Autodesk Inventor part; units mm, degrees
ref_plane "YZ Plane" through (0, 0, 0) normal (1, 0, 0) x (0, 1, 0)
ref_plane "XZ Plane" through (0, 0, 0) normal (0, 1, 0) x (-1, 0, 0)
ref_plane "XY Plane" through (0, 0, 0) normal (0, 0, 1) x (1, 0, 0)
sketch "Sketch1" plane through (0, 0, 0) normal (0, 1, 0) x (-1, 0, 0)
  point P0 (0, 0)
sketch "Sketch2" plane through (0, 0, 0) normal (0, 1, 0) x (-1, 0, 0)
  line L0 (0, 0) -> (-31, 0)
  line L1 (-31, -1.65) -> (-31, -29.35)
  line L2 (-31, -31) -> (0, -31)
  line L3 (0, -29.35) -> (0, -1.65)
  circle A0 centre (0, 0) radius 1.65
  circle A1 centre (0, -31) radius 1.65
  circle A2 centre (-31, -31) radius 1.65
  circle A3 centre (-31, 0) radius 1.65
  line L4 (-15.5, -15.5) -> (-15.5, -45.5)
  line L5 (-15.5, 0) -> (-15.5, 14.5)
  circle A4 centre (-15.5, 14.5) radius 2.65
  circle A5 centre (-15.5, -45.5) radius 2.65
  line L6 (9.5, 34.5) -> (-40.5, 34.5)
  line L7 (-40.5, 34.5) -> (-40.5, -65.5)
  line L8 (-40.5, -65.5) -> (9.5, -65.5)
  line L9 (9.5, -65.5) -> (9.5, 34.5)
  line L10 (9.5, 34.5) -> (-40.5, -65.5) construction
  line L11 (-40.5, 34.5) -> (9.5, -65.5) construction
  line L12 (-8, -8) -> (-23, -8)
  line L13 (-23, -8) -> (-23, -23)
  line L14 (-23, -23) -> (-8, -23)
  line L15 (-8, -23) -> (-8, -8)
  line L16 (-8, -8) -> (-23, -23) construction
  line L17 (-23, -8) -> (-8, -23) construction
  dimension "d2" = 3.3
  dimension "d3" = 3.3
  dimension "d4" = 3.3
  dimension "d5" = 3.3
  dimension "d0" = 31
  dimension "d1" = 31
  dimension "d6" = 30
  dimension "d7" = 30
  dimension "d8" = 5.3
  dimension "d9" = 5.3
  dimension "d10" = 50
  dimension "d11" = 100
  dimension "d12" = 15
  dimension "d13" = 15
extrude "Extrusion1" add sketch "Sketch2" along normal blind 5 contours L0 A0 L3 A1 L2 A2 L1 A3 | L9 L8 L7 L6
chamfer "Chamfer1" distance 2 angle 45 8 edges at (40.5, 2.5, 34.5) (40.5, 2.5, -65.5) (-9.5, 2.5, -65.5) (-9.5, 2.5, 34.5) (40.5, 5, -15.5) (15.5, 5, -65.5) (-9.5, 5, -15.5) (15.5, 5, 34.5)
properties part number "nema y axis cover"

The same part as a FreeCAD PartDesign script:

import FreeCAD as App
import Part
import Sketcher
from FreeCAD import Vector


def edges_at(feature, points):
    """Names of the edges that pass closest to the given points."""
    edges = feature.Shape.Edges
    near = lambda p: min(range(len(edges)), key=lambda i: edges[i].distToShape(Part.Vertex(*p))[0])
    return sorted({f"Edge{near(p) + 1}" for p in points})


def add_polygon(sketch, points):
    """Adds a closed chain of lines whose ends are joined by coincident constraints."""
    first, n = sketch.GeometryCount, len(points)
    for a, b in zip(points, points[1:] + points[:1]):
        sketch.addGeometry(Part.LineSegment(App.Vector(*a, 0), App.Vector(*b, 0)), False)
    for i in range(n):
        sketch.addConstraint(Sketcher.Constraint("Coincident", first + i, 2, first + (i + 1) % n, 1))

doc = App.newDocument("Part")
params = doc.addObject("Spreadsheet::Sheet", "Params")
for row, (alias, value) in enumerate([
    ("sketch1_diameter", "3.3 mm"),
    ("sketch1_diameter2", "5.3 mm"),
    ("sketch1_width", "50 mm"),
    ("sketch1_width2", "15 mm"),
    ("sketch1_height", "100 mm"),
    ("pad1_length", "5 mm"),
    ("chamfer_size", "2 mm"),
], start=1):
    params.set(f"A{row}", alias)
    params.set(f"B{row}", "=" + value)
    params.setAlias(f"B{row}", alias)

body = doc.addObject("PartDesign::Body", "Body")

# Sketch on XZ plane
sketch1 = body.newObject("Sketcher::SketchObject", "Sketch")
sketch1.AttachmentSupport = (doc.getObject("XZ_Plane"), [""])
sketch1.MapMode = "FlatFace"
add_polygon(sketch1, [(-9.5, -65.5), (-9.5, 34.5), (40.5, 34.5), (40.5, -65.5)])  # lines 0-3
sketch1.addGeometry(Part.Circle(Vector(0, 0, 0), Vector(0, 0, 1), 1.6), False)  # 4
sketch1.addGeometry(Part.Circle(Vector(0, -31, 0), Vector(0, 0, 1), 1.6), False)  # 5
sketch1.addGeometry(Part.Circle(Vector(31, -31, 0), Vector(0, 0, 1), 1.6), False)  # 6
sketch1.addGeometry(Part.Circle(Vector(31, 0, 0), Vector(0, 0, 1), 1.6), False)  # 7
add_polygon(sketch1, [(8, -23), (15.5, -23), (23, -23), (23, -8), (8, -8)])  # lines 8-12
sketch1.addGeometry(Part.Circle(Vector(15.5, -45.5, 0), Vector(0, 0, 1), 2.6), False)  # 13
sketch1.addGeometry(Part.Circle(Vector(15.5, 14.5, 0), Vector(0, 0, 1), 2.6), False)  # 14
sketch1.addConstraint([
    Sketcher.Constraint("Vertical", 0),
    Sketcher.Constraint("Horizontal", 1),
    Sketcher.Constraint("Vertical", 2),
    Sketcher.Constraint("Horizontal", 3),
    Sketcher.Constraint("Horizontal", 8),
    Sketcher.Constraint("Horizontal", 9),
    Sketcher.Constraint("Vertical", 10),
    Sketcher.Constraint("Horizontal", 11),
    Sketcher.Constraint("Vertical", 12),
    Sketcher.Constraint("Coincident", 4, 3, -1, 1),
    Sketcher.Constraint("Equal", 4, 5),
    Sketcher.Constraint("Equal", 5, 6),
    Sketcher.Constraint("Equal", 6, 7),
    Sketcher.Constraint("Equal", 13, 14),
    Sketcher.Constraint("PointOnObject", 5, 3, -2),
    Sketcher.Constraint("PointOnObject", 7, 3, -1),
    Sketcher.Constraint("Horizontal", 5, 3, 6, 3),
    Sketcher.Constraint("Vertical", 6, 3, 7, 3),
    Sketcher.Constraint("Vertical", 13, 3, 14, 3),
    Sketcher.Constraint("Vertical", 14, 3, 8, 2),
    Sketcher.Constraint("Equal", 8, 9),
    Sketcher.Constraint("Equal", 11, 10),
    Sketcher.Constraint("Diameter", 4, 3.3),
    Sketcher.Constraint("Diameter", 13, 5.3),
    Sketcher.Constraint("DistanceX", 1, 1, 1, 2, 50.0),
    Sketcher.Constraint("DistanceX", 11, 2, 11, 1, 15.0),
    Sketcher.Constraint("DistanceY", 0, 1, 0, 2, 100.0),
    Sketcher.Constraint("DistanceY", 5, 3, -1, 1, 31.0),
    Sketcher.Constraint("DistanceX", -1, 1, 6, 3, 31.0),
    Sketcher.Constraint("DistanceY", 8, 2, -1, 1, 23.0),
    Sketcher.Constraint("DistanceX", -1, 1, 9, 2, 23.0),
    Sketcher.Constraint("DistanceY", 13, 3, 14, 3, 60.0),
    Sketcher.Constraint("DistanceX", 0, 2, 14, 3, 25.0),
    Sketcher.Constraint("DistanceY", 14, 3, 0, 2, 20.0),
    Sketcher.Constraint("DistanceY", 13, 3, -1, 1, 45.5),
])
sketch1.setExpression("Constraints[31]", "Params.sketch1_diameter")
sketch1.setExpression("Constraints[32]", "Params.sketch1_diameter2")
sketch1.setExpression("Constraints[33]", "Params.sketch1_width")
sketch1.setExpression("Constraints[34]", "Params.sketch1_width2")
sketch1.setExpression("Constraints[35]", "Params.sketch1_height")
pad1 = body.newObject("PartDesign::Pad", "Pad")
pad1.Profile = sketch1
pad1.setExpression("Length", "Params.pad1_length")
pad1.Reversed = True
doc.recompute()

chamfer = body.newObject("PartDesign::Chamfer", "Chamfer")
chamfer.Base = (pad1, edges_at(pad1, [
    (40.5, 2.5, 34.5),
    (40.5, 2.5, -65.5),
    (-9.5, 2.5, -65.5),
    (-9.5, 2.5, 34.5),
    (40.5, 5, -15.5),
    (15.5, 5, -65.5),
    (-9.5, 5, -15.5),
    (15.5, 5, 34.5),
]))
chamfer.setExpression("Size", "Params.chamfer_size")

doc.recompute()
